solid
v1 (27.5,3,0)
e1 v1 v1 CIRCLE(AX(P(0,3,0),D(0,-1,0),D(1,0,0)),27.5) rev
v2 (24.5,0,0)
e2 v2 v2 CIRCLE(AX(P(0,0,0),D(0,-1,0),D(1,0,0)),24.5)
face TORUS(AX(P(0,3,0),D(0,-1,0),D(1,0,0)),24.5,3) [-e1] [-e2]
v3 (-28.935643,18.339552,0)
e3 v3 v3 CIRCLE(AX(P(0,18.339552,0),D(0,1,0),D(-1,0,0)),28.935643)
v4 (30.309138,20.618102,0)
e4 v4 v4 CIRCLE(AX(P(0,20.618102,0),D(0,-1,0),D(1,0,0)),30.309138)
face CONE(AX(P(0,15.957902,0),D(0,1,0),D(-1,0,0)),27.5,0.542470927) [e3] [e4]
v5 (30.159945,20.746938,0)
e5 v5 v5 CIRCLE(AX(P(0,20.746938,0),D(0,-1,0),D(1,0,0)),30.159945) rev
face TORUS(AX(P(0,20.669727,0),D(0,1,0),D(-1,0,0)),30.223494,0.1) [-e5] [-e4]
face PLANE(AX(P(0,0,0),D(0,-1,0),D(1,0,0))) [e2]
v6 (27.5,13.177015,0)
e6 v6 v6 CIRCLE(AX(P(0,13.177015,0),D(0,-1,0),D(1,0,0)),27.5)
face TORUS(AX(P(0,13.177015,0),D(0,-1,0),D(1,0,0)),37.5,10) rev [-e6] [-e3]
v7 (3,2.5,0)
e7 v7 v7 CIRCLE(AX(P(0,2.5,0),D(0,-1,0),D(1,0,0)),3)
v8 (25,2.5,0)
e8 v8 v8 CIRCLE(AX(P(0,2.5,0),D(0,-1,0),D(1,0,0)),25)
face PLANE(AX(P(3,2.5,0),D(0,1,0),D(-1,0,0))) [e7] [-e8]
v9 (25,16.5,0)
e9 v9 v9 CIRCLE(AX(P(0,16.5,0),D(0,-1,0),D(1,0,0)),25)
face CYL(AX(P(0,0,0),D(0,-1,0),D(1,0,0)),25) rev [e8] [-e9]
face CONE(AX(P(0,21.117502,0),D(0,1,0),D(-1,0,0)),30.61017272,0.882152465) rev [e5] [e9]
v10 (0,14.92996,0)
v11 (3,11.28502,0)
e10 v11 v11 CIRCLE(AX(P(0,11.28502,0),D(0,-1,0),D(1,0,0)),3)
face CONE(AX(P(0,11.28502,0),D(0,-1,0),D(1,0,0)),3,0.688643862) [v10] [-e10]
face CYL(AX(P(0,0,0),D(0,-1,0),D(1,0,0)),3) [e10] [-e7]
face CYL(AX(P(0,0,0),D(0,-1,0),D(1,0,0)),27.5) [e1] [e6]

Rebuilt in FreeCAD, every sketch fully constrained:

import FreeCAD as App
import Part
import Sketcher
from FreeCAD import Vector


def edges_at(feature, points):
    """Names of the edges that pass closest to the given points."""
    edges = feature.Shape.Edges
    near = lambda p: min(range(len(edges)), key=lambda i: edges[i].distToShape(Part.Vertex(*p))[0])
    return sorted({f"Edge{near(p) + 1}" for p in points})

doc = App.newDocument("Part")
body = doc.addObject("PartDesign::Body", "Body")

# Sketch on XY plane
sketch1 = body.newObject("Sketcher::SketchObject", "Sketch")
sketch1.AttachmentSupport = (doc.getObject("XY_Plane"), [""])
sketch1.MapMode = "FlatFace"
sketch1.addGeometry([
    Part.LineSegment(Vector(0, 14.92996, 0), Vector(0, 0, 0)),  # 0
    Part.LineSegment(Vector(0, 0, 0), Vector(27.5, 0, 0)),  # 1
    Part.LineSegment(Vector(27.5, 0, 0), Vector(27.5, 15.957902, 0)),  # 2
    Part.LineSegment(Vector(27.5, 15.957902, 0), Vector(30.610173, 21.117502, 0)),  # 3
    Part.LineSegment(Vector(30.610173, 21.117502, 0), Vector(25, 16.5, 0)),  # 4
    Part.LineSegment(Vector(25, 16.5, 0), Vector(25, 2.5, 0)),  # 5
    Part.LineSegment(Vector(25, 2.5, 0), Vector(3, 2.5, 0)),  # 6
    Part.LineSegment(Vector(3, 2.5, 0), Vector(3, 11.28502, 0)),  # 7
    Part.LineSegment(Vector(3, 11.28502, 0), Vector(0, 14.92996, 0)),  # 8
], False)
sketch1.addConstraint([
    Sketcher.Constraint("Coincident", 0, 2, 1, 1),
    Sketcher.Constraint("Coincident", 1, 2, 2, 1),
    Sketcher.Constraint("Coincident", 2, 2, 3, 1),
    Sketcher.Constraint("Coincident", 3, 2, 4, 1),
    Sketcher.Constraint("Coincident", 4, 2, 5, 1),
    Sketcher.Constraint("Coincident", 5, 2, 6, 1),
    Sketcher.Constraint("Coincident", 6, 2, 7, 1),
    Sketcher.Constraint("Coincident", 7, 2, 8, 1),
    Sketcher.Constraint("Coincident", 8, 2, 0, 1),
    Sketcher.Constraint("Vertical", 0),
    Sketcher.Constraint("Horizontal", 1),
    Sketcher.Constraint("Vertical", 2),
    Sketcher.Constraint("Vertical", 5),
    Sketcher.Constraint("Horizontal", 6),
    Sketcher.Constraint("Vertical", 7),
    Sketcher.Constraint("Coincident", 0, 2, -1, 1),
    Sketcher.Constraint("Perpendicular", 4, 8),
    Sketcher.Constraint("DistanceX", 6, 2, 6, 1, 22.0),
    Sketcher.Constraint("DistanceY", 5, 2, 5, 1, 14.0),
    Sketcher.Constraint("DistanceX", 1, 1, 1, 2, 27.5),
    Sketcher.Constraint("DistanceX", -1, 1, 4, 2, 25.0),
    Sketcher.Constraint("DistanceY", -1, 1, 4, 2, 16.5),
    Sketcher.Constraint("DistanceY", 2, 1, 2, 2, 15.957902),
    Sketcher.Constraint("DistanceY", 0, 2, 0, 1, 14.92996),
    Sketcher.Constraint("DistanceY", 7, 1, 7, 2, 8.78502),
    Sketcher.Constraint("DistanceY", -1, 1, 3, 2, 21.117502),
])
revolution = body.newObject("PartDesign::Revolution", "Revolution")
revolution.Profile = sketch1
revolution.ReferenceAxis = (sketch1, ["V_Axis"])
revolution.Angle = 360
doc.recompute()

fillet = body.newObject("PartDesign::Fillet", "Fillet")
fillet.Base = (revolution, edges_at(revolution, [(-27.5, 15.958, 0)]))
fillet.Radius = 10
doc.recompute()

fillet2 = body.newObject("PartDesign::Fillet", "Fillet001")
fillet2.Base = (fillet, edges_at(fillet, [(-27.5, 0, 0)]))
fillet2.Radius = 3
doc.recompute()

fillet3 = body.newObject("PartDesign::Fillet", "Fillet002")
fillet3.Base = (fillet2, edges_at(fillet2, [(-30.61, 21.118, 0)]))
fillet3.Radius = 0.1

doc.recompute()
